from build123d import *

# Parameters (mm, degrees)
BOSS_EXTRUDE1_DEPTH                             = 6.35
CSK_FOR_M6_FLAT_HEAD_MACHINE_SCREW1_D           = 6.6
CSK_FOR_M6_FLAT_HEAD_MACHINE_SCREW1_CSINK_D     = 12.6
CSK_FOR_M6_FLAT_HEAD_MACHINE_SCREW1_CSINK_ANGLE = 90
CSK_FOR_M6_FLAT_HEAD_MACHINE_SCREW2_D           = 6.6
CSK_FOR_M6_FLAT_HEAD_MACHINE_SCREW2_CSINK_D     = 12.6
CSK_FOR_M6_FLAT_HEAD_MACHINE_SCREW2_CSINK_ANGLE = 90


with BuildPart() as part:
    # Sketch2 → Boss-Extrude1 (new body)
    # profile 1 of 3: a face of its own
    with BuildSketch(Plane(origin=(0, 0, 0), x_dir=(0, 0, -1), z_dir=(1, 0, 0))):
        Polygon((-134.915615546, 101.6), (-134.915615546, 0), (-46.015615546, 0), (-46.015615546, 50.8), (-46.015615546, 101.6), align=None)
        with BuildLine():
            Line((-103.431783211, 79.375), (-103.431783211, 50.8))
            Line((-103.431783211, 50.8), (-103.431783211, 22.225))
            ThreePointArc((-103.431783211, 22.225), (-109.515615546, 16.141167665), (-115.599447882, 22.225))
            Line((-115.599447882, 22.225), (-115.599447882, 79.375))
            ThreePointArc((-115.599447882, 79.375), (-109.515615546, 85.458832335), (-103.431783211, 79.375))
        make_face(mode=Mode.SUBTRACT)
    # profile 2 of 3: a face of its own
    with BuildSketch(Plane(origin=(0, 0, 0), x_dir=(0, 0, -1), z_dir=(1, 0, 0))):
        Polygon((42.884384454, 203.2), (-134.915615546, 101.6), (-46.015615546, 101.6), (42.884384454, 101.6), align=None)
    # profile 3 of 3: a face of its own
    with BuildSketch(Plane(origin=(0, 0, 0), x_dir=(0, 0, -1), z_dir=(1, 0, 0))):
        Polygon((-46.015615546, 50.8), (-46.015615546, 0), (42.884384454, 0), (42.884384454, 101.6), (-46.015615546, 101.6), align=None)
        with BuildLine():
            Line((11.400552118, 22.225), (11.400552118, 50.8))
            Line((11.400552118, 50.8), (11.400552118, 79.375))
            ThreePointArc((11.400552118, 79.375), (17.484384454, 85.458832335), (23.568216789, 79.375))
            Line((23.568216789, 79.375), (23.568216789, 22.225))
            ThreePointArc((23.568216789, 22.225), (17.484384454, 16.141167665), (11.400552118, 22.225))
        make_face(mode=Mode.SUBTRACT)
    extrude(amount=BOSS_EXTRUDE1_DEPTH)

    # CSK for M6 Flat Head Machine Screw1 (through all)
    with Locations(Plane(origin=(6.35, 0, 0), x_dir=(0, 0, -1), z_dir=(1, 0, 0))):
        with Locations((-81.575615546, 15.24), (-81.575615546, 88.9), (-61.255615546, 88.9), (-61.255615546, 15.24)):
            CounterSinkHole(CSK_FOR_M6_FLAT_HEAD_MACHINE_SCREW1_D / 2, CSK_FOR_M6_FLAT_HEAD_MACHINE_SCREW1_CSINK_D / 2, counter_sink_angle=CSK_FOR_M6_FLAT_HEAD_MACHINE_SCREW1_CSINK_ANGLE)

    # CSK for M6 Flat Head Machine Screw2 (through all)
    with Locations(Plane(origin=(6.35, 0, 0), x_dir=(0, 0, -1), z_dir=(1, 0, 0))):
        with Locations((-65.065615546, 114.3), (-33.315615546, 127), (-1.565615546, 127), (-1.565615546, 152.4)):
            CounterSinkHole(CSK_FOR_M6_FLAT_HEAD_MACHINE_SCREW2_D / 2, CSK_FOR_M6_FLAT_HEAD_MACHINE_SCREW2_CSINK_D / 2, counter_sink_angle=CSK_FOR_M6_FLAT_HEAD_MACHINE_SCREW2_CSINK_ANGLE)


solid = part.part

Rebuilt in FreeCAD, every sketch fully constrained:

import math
import FreeCAD as App
import Part
import Sketcher

V = App.Vector
Q = App.Units.Quantity


def add_polygon(sketch, points):
    """Adds a closed chain of lines whose ends are joined by coincident constraints."""
    first, n = sketch.GeometryCount, len(points)
    for a, b in zip(points, points[1:] + points[:1]):
        sketch.addGeometry(Part.LineSegment(App.Vector(*a, 0), App.Vector(*b, 0)), False)
    for i in range(n):
        sketch.addConstraint(Sketcher.Constraint("Coincident", first + i, 2, first + (i + 1) % n, 1))

doc = App.newDocument("Part")
params = doc.addObject("Spreadsheet::Sheet", "Params")
for row, (alias, value) in enumerate([
    ("sketch1_width", "4 in"),
    ("sketch1_width2", "8 in"),
    ("sketch1_height", "7 in"),
    ("sketch1_width3", "2.25 in"),
    ("pad1_length", "0.25 in"),
    ("hole_diameter", "6.6 mm"),
    ("hole_csink_diameter", "12.6 mm"),
    ("hole2_diameter", "6.6 mm"),
    ("hole2_csink_diameter", "12.6 mm"),
], start=1):
    params.set(f"A{row}", alias)
    params.set(f"B{row}", "=" + value)
    params.setAlias(f"B{row}", alias)

body = doc.addObject("PartDesign::Body", "Body")

sketch1 = body.newObject("Sketcher::SketchObject", "Sketch")
sketch1.AttachmentSupport = (doc.getObject("YZ_Plane"), [""])
sketch1.MapMode = "FlatFace"
add_polygon(sketch1, [(102, 135), (0, 135), (0, -43), (203, -43)])
sketch1.addGeometry(Part.ArcOfCircle(Part.Circle(V(79, 110, 0), V(0, 0, 1), 6), math.radians(-90), math.radians(90)), False)
sketch1.addGeometry(Part.LineSegment(V(79, 103, 0), V(22, 103, 0)), False)
sketch1.addGeometry(Part.ArcOfCircle(Part.Circle(V(22, 110, 0), V(0, 0, 1), 6), math.radians(90), math.radians(270)), False)
sketch1.addGeometry(Part.LineSegment(V(22, 116, 0), V(79, 116, 0)), False)
sketch1.addGeometry(Part.LineSegment(V(22, -11, 0), V(79, -11, 0)), False)
sketch1.addGeometry(Part.ArcOfCircle(Part.Circle(V(79, -17, 0), V(0, 0, 1), 6), math.radians(-90), math.radians(90)), False)
sketch1.addGeometry(Part.LineSegment(V(79, -24, 0), V(22, -24, 0)), False)
sketch1.addGeometry(Part.ArcOfCircle(Part.Circle(V(22, -17, 0), V(0, 0, 1), 6), math.radians(90), math.radians(270)), False)
sketch1.addConstraint([
    Sketcher.Constraint("Tangent", 4, 1, 5, 1),
    Sketcher.Constraint("Tangent", 5, 2, 6, 2),
    Sketcher.Constraint("Tangent", 6, 1, 7, 1),
    Sketcher.Constraint("Tangent", 7, 2, 4, 2),
    Sketcher.Constraint("Tangent", 8, 2, 9, 2),
    Sketcher.Constraint("Tangent", 9, 1, 10, 1),
    Sketcher.Constraint("Tangent", 10, 2, 11, 2),
    Sketcher.Constraint("Tangent", 11, 1, 8, 1),
    Sketcher.Constraint("Horizontal", 0),
    Sketcher.Constraint("Vertical", 1),
    Sketcher.Constraint("Horizontal", 2),
    Sketcher.Constraint("Horizontal", 5),
    Sketcher.Constraint("Horizontal", 7),
    Sketcher.Constraint("Horizontal", 8),
    Sketcher.Constraint("Horizontal", 10),
    Sketcher.Constraint("Equal", 6, 9),
    Sketcher.Constraint("PointOnObject", 0, 2, -2),
    Sketcher.Constraint("Vertical", 4, 3, 9, 3),
    Sketcher.Constraint("Vertical", 6, 3, 11, 3),
    Sketcher.Constraint("DistanceX", 0, 2, 0, 1, Q("4 in")),
    Sketcher.Constraint("DistanceX", 2, 1, 2, 2, Q("8 in")),
    Sketcher.Constraint("DistanceY", 1, 2, 1, 1, Q("7 in")),
    Sketcher.Constraint("DistanceY", 9, 3, 4, 3, Q("5 in")),
    Sketcher.Constraint("DistanceY", 6, 3, 0, 2, Q("1 in")),
    Sketcher.Constraint("DistanceX", 5, 2, 5, 1, Q("2.25 in")),
    Sketcher.Constraint("DistanceX", -1, 1, 4, 3, Q("3.125 in")),
    Sketcher.Constraint("Radius", 4, 6.083832),
    Sketcher.Constraint("DistanceY", -1, 1, 4, 3, 109.515616),
])
sketch1.setExpression("Constraints[23]", "Params.sketch1_width")
sketch1.setExpression("Constraints[24]", "Params.sketch1_width2")
sketch1.setExpression("Constraints[25]", "Params.sketch1_height")
sketch1.setExpression("Constraints[28]", "Params.sketch1_width3")
pad1 = body.newObject("PartDesign::Pad", "Pad")
pad1.Profile = sketch1
pad1.setExpression("Length", "Params.pad1_length")

sketch2 = body.newObject("Sketcher::SketchObject", "Sketch001")
sketch2.AttachmentSupport = (doc.getObject("YZ_Plane"), [""])
sketch2.MapMode = "FlatFace"
sketch2.AttachmentOffset = App.Placement(V(0, 0, 0.25 * 25.4), App.Rotation())
sketch2.addGeometry([
    Part.Circle(V(15.2, 81.6, 0), V(0, 0, 1), 3.3),
    Part.Circle(V(88.9, 81.6, 0), V(0, 0, 1), 3.3),
    Part.Circle(V(88.9, 61.3, 0), V(0, 0, 1), 3.3),
    Part.Circle(V(15.2, 61.3, 0), V(0, 0, 1), 3.3),
], False)
sketch2.addConstraint([
    Sketcher.Constraint("Equal", 0, 1),
    Sketcher.Constraint("Equal", 1, 2),
    Sketcher.Constraint("Equal", 2, 3),
    Sketcher.Constraint("Horizontal", 0, 3, 1, 3),
    Sketcher.Constraint("Horizontal", 2, 3, 3, 3),
    Sketcher.Constraint("Vertical", 1, 3, 2, 3),
    Sketcher.Constraint("Vertical", 0, 3, 3, 3),
    Sketcher.Constraint("DistanceX", -1, 1, 0, 3, Q("0.6 in")),
    Sketcher.Constraint("DistanceX", -1, 1, 1, 3, Q("3.5 in")),
    Sketcher.Constraint("DistanceY", 2, 3, 1, 3, Q("0.8 in")),
    Sketcher.Constraint("Diameter", 0, 6.6),
    Sketcher.Constraint("DistanceY", -1, 1, 0, 3, 81.575616),
])
doc.recompute()
hole = body.newObject("PartDesign::Hole", "Hole")
hole.Profile = sketch2
hole.ThreadType = "None"
hole.setExpression("Diameter", "Params.hole_diameter")
hole.DepthType = "ThroughAll"
hole.HoleCutType = "Countersink"
hole.setExpression("HoleCutDiameter", "Params.hole_csink_diameter")
hole.HoleCutCountersinkAngle = 90

sketch3 = body.newObject("Sketcher::SketchObject", "Sketch002")
sketch3.AttachmentSupport = (doc.getObject("YZ_Plane"), [""])
sketch3.MapMode = "FlatFace"
sketch3.AttachmentOffset = App.Placement(V(0, 0, 0.25 * 25.4), App.Rotation())
sketch3.addGeometry([
    Part.Circle(V(114.3, 65.1, 0), V(0, 0, 1), 3.3),
    Part.Circle(V(127, 33.3, 0), V(0, 0, 1), 3.3),
    Part.Circle(V(127, 1.6, 0), V(0, 0, 1), 3.3),
    Part.Circle(V(152.4, 1.6, 0), V(0, 0, 1), 3.3),
], False)
sketch3.addConstraint([
    Sketcher.Constraint("Equal", 0, 1),
    Sketcher.Constraint("Equal", 1, 2),
    Sketcher.Constraint("Equal", 2, 3),
    Sketcher.Constraint("Horizontal", 2, 3, 3, 3),
    Sketcher.Constraint("Vertical", 1, 3, 2, 3),
    Sketcher.Constraint("DistanceX", -1, 1, 1, 3, Q("5 in")),
    Sketcher.Constraint("DistanceX", -1, 1, 3, 3, Q("6 in")),
    Sketcher.Constraint("DistanceX", -1, 1, 0, 3, Q("4.5 in")),
    Sketcher.Constraint("DistanceY", 2, 3, 0, 3, Q("2.5 in")),
    Sketcher.Constraint("Diameter", 0, 6.6),
    Sketcher.Constraint("DistanceY", 1, 3, 0, 3, Q("1.25 in")),
    Sketcher.Constraint("DistanceY", -1, 1, 0, 3, 65.065616),
])
doc.recompute()
hole2 = body.newObject("PartDesign::Hole", "Hole001")
hole2.Profile = sketch3
hole2.ThreadType = "None"
hole2.setExpression("Diameter", "Params.hole2_diameter")
hole2.DepthType = "ThroughAll"
hole2.HoleCutType = "Countersink"
hole2.setExpression("HoleCutDiameter", "Params.hole2_csink_diameter")
hole2.HoleCutCountersinkAngle = 90

doc.recompute()
